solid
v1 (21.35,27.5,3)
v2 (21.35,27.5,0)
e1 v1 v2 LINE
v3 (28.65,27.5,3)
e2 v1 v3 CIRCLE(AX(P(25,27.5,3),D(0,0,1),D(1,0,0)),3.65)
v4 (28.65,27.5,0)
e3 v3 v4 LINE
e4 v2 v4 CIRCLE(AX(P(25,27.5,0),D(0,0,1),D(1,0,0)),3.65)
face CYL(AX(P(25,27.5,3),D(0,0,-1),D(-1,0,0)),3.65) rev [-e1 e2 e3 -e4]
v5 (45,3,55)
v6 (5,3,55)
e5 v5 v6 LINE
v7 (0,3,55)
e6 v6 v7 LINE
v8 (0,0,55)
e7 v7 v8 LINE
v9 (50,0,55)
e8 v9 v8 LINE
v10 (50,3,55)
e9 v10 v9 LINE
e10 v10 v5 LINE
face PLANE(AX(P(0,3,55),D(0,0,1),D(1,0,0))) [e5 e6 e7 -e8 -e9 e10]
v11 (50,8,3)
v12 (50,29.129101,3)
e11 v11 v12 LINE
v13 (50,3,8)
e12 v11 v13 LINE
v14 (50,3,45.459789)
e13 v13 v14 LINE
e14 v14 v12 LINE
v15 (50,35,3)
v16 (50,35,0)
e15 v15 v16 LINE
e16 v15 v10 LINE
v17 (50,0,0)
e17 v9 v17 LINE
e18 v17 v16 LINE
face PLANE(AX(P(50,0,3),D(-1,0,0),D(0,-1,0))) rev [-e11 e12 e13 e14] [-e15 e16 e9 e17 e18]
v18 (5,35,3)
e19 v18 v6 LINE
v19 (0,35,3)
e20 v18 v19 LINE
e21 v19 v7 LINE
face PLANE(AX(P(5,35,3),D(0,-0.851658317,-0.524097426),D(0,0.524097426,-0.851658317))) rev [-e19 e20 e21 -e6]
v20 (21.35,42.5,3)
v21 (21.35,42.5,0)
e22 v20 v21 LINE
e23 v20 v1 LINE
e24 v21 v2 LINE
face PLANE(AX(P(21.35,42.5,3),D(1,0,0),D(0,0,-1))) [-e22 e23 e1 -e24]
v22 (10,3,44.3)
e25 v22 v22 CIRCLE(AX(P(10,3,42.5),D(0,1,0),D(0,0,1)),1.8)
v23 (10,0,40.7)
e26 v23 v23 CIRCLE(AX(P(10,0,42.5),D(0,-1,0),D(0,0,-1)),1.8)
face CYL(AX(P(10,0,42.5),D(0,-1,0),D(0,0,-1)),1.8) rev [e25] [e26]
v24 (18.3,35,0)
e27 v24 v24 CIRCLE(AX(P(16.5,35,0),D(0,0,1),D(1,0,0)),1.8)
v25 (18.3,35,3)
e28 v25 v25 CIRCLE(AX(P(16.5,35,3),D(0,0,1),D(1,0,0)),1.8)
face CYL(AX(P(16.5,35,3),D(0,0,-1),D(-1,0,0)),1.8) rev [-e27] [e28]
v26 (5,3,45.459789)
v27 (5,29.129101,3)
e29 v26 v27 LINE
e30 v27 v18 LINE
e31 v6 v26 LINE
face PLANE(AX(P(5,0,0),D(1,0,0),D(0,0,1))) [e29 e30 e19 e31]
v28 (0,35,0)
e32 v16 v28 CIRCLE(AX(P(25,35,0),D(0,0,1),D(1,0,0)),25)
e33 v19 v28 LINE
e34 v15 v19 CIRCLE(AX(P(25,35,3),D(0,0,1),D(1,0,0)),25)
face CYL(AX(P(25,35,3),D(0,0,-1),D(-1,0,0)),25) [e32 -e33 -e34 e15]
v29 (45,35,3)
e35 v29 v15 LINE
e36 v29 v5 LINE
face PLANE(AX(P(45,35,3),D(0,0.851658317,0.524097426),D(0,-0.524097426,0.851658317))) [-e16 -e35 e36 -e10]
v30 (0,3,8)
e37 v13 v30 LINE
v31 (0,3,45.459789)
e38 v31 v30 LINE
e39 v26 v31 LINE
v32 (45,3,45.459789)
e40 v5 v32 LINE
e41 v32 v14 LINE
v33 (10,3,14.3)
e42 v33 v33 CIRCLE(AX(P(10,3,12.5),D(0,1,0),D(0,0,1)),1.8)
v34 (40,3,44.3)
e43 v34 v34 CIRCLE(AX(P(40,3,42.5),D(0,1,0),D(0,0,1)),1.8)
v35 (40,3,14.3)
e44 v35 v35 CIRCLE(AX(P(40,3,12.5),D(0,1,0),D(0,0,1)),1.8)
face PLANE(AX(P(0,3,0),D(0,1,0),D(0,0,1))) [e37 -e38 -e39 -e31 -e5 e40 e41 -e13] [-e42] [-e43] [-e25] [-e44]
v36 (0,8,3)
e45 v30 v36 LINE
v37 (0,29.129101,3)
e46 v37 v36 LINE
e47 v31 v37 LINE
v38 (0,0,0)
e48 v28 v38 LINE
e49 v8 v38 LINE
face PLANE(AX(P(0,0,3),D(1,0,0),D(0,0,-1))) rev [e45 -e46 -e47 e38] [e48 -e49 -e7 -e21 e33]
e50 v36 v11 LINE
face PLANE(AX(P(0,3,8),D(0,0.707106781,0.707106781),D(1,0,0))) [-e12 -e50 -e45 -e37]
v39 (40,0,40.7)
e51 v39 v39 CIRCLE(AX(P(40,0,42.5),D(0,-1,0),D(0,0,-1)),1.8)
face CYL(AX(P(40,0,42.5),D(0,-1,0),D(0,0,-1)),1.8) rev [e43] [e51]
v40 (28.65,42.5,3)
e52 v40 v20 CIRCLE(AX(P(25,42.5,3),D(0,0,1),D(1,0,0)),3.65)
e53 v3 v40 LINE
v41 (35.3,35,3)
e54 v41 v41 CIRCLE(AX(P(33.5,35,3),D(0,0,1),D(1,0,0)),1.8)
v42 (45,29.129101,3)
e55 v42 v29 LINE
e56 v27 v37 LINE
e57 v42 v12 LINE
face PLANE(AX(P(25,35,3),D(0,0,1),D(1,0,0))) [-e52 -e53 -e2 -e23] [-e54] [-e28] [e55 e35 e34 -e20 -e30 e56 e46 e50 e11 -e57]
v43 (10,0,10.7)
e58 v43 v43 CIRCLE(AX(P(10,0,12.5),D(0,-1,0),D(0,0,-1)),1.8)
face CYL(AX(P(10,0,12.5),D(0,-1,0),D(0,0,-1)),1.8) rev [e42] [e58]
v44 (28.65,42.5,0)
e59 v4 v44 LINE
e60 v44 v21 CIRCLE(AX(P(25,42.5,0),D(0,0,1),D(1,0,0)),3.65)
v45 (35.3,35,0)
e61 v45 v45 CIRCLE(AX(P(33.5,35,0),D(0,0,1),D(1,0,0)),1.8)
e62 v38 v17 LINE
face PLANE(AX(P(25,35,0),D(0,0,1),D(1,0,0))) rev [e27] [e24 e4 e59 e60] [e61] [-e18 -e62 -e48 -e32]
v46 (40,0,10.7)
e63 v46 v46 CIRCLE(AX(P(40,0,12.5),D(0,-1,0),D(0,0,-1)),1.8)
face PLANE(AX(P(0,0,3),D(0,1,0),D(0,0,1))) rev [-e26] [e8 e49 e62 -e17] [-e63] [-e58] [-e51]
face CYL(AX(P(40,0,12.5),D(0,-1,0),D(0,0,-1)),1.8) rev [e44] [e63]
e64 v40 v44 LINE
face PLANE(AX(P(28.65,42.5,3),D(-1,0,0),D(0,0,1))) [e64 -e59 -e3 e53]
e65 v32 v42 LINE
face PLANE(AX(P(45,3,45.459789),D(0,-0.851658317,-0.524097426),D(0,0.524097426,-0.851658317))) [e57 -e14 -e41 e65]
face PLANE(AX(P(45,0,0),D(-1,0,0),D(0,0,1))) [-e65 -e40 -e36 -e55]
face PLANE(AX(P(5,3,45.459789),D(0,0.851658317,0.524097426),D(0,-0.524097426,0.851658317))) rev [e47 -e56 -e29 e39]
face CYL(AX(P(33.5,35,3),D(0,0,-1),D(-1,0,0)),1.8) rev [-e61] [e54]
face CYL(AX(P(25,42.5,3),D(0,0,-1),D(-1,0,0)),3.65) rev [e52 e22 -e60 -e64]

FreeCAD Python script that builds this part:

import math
import FreeCAD as App
import Part
import Sketcher
Q = App.Units.Quantity


def edges_at(feature, points):
    """Names of the edges that pass closest to the given points."""
    edges = feature.Shape.Edges
    near = lambda p: min(range(len(edges)), key=lambda i: edges[i].distToShape(Part.Vertex(*p))[0])
    return sorted({f"Edge{near(p) + 1}" for p in points})


def add_polygon(sketch, points):
    """Adds a closed chain of lines whose ends are joined by coincident constraints."""
    first, n = sketch.GeometryCount, len(points)
    for a, b in zip(points, points[1:] + points[:1]):
        sketch.addGeometry(Part.LineSegment(App.Vector(*a, 0), App.Vector(*b, 0)), False)
    for i in range(n):
        sketch.addConstraint(Sketcher.Constraint("Coincident", first + i, 2, first + (i + 1) % n, 1))

doc = App.newDocument("Part")
body = doc.addObject("PartDesign::Body", "Body")

sketch1 = doc.addObject("Sketcher::SketchObject", "Sketch")
body.addObject(sketch1)
sketch1.AttachmentSupport = (doc.XY_Plane, [""])
sketch1.MapMode = "FlatFace"
sketch1.addGeometry([
    Part.LineSegment(App.Vector(0, 35, 0), App.Vector(0, 0, 0)),
    Part.LineSegment(App.Vector(0, 0, 0), App.Vector(50, 0, 0)),
    Part.LineSegment(App.Vector(50, 0, 0), App.Vector(50, 35, 0)),
    Part.ArcOfCircle(Part.Circle(App.Vector(25, 35, 0), App.Vector(0, 0, 1), 25), math.radians(0), math.radians(180)),
    Part.Circle(App.Vector(33.5, 35, 0), App.Vector(0, 0, 1), 1.8),
    Part.LineSegment(App.Vector(28.6, 42.5, 0), App.Vector(28.6, 27.5, 0)),
    Part.ArcOfCircle(Part.Circle(App.Vector(25, 27.5, 0), App.Vector(0, 0, 1), 3.6), math.radians(180), math.radians(360)),
    Part.LineSegment(App.Vector(21.4, 27.5, 0), App.Vector(21.4, 42.5, 0)),
    Part.ArcOfCircle(Part.Circle(App.Vector(25, 42.5, 0), App.Vector(0, 0, 1), 3.6), math.radians(0), math.radians(180)),
    Part.Circle(App.Vector(16.5, 35, 0), App.Vector(0, 0, 1), 1.8),
], False)
sketch1.addConstraint([
    Sketcher.Constraint("Coincident", 0, 2, 1, 1),
    Sketcher.Constraint("Coincident", 1, 2, 2, 1),
    Sketcher.Constraint("Tangent", 2, 2, 3, 1),
    Sketcher.Constraint("Tangent", 3, 2, 0, 1),
    Sketcher.Constraint("Tangent", 5, 2, 6, 2),
    Sketcher.Constraint("Tangent", 6, 1, 7, 1),
    Sketcher.Constraint("Tangent", 7, 2, 8, 2),
    Sketcher.Constraint("Tangent", 8, 1, 5, 1),
    Sketcher.Constraint("Vertical", 0),
    Sketcher.Constraint("Horizontal", 1),
    Sketcher.Constraint("Vertical", 2),
    Sketcher.Constraint("Vertical", 5),
    Sketcher.Constraint("Vertical", 7),
    Sketcher.Constraint("Coincident", 0, 2, -1, 1),
    Sketcher.Constraint("Equal", 4, 9),
    Sketcher.Constraint("Horizontal", 3, 3, 4, 3),
    Sketcher.Constraint("Horizontal", 4, 3, 9, 3),
    Sketcher.Constraint("Vertical", 3, 3, 6, 3),
    Sketcher.Constraint("Radius", 3, Q("25 mm")),
    Sketcher.Constraint("Diameter", 4, Q("3.6 mm")),
    Sketcher.Constraint("DistanceY", 0, 2, 0, 1, Q("35 mm")),
    Sketcher.Constraint("DistanceY", 5, 2, 5, 1, Q("15 mm")),
    Sketcher.Constraint("Radius", 6, Q("3.65 mm")),
    Sketcher.Constraint("DistanceX", 9, 3, 4, 3, Q("17 mm")),
    Sketcher.Constraint("DistanceX", -1, 1, 4, 3, Q("33.5 mm")),
    Sketcher.Constraint("DistanceY", -1, 1, 6, 3, Q("27.5 mm")),
])
pad1 = doc.addObject("PartDesign::Pad", "Pad")
body.addObject(pad1)
pad1.Profile = sketch1
pad1.Length = 3

sketch2 = doc.addObject("Sketcher::SketchObject", "Sketch001")
body.addObject(sketch2)
sketch2.AttachmentSupport = (doc.XZ_Plane, [""])
sketch2.MapMode = "FlatFace"
add_polygon(sketch2, [(0, 55), (0, 0), (50, 0), (50, 55)])
sketch2.addConstraint([
    Sketcher.Constraint("Vertical", 0),
    Sketcher.Constraint("Horizontal", 1),
    Sketcher.Constraint("Vertical", 2),
    Sketcher.Constraint("Horizontal", 3),
    Sketcher.Constraint("Coincident", 0, 2, -1, 1),
    Sketcher.Constraint("DistanceX", 1, 1, 1, 2, Q("50 mm")),
    Sketcher.Constraint("DistanceY", 0, 2, 0, 1, Q("55 mm")),
])
pad2 = doc.addObject("PartDesign::Pad", "Pad001")
body.addObject(pad2)
pad2.Profile = sketch2
pad2.Length = 3
pad2.Reversed = True

sketch3 = doc.addObject("Sketcher::SketchObject", "Sketch002")
body.addObject(sketch3)
sketch3.AttachmentSupport = (doc.XZ_Plane, [""])
sketch3.MapMode = "FlatFace"
sketch3.addGeometry(Part.Circle(App.Vector(10, 42.5, 0), App.Vector(0, 0, 1), 1.8), False)
sketch3.addConstraint([
    Sketcher.Constraint("Diameter", 0, Q("3.6 mm")),
    Sketcher.Constraint("DistanceX", -1, 1, 0, 3, Q("10 mm")),
    Sketcher.Constraint("DistanceY", -1, 1, 0, 3, Q("42.5 mm")),
])
doc.recompute()
hole = doc.addObject("PartDesign::Hole", "Hole")
body.addObject(hole)
hole.Profile = sketch3
hole.ThreadType = "None"
hole.Diameter = 3.6
hole.DepthType = "ThroughAll"
doc.recompute()

datumplane = doc.addObject("PartDesign::Plane", "DatumPlane")
body.addObject(datumplane)
datumplane.AttachmentSupport = (doc.YZ_Plane, [""])
datumplane.MapMode = "FlatFace"
datumplane.AttachmentOffset = App.Placement(App.Vector(0, 0, 25), App.Rotation())
mirrored = doc.addObject("PartDesign::Mirrored", "Mirrored")
body.addObject(mirrored)
mirrored.Originals = [hole]
mirrored.MirrorPlane = (datumplane, [""])
body.Tip = mirrored
doc.recompute()

datumplane2 = doc.addObject("PartDesign::Plane", "DatumPlane001")
body.addObject(datumplane2)
datumplane2.AttachmentSupport = (doc.XY_Plane, [""])
datumplane2.MapMode = "FlatFace"
datumplane2.AttachmentOffset = App.Placement(App.Vector(0, 0, 27.5), App.Rotation())
mirrored2 = doc.addObject("PartDesign::Mirrored", "Mirrored001")
body.addObject(mirrored2)
mirrored2.Originals = [hole]
mirrored2.MirrorPlane = (datumplane2, [""])
body.Tip = mirrored2

sketch4 = doc.addObject("Sketcher::SketchObject", "Sketch003")
body.addObject(sketch4)
sketch4.AttachmentSupport = (doc.XZ_Plane, [""])
sketch4.MapMode = "FlatFace"
sketch4.addGeometry(Part.Circle(App.Vector(40, 12.5, 0), App.Vector(0, 0, 1), 1.8), False)
sketch4.addConstraint([
    Sketcher.Constraint("Diameter", 0, Q("3.6 mm")),
    Sketcher.Constraint("DistanceX", -1, 1, 0, 3, Q("40 mm")),
    Sketcher.Constraint("DistanceY", -1, 1, 0, 3, Q("12.5 mm")),
])
doc.recompute()
hole2 = doc.addObject("PartDesign::Hole", "Hole001")
body.addObject(hole2)
hole2.Profile = sketch4
hole2.ThreadType = "None"
hole2.Diameter = 3.6
hole2.DepthType = "ThroughAll"

sketch5 = doc.addObject("Sketcher::SketchObject", "Sketch004")
body.addObject(sketch5)
sketch5.AttachmentSupport = (doc.YZ_Plane, [""])
sketch5.MapMode = "FlatFace"
sketch5.AttachmentOffset = App.Placement(App.Vector(0, 0, 50), App.Rotation())
add_polygon(sketch5, [(35, 3), (3, 55), (3, 45), (29, 3)])
sketch5.addConstraint([
    Sketcher.Constraint("Vertical", 1),
    Sketcher.Constraint("Horizontal", 3),
    Sketcher.Constraint("Parallel", 0, 2),
    Sketcher.Constraint("DistanceX", -1, 1, 0, 2, Q("3 mm")),
    Sketcher.Constraint("DistanceY", -1, 1, 0, 2, Q("55 mm")),
    Sketcher.Constraint("DistanceY", -1, 1, 2, 2, Q("3 mm")),
    Sketcher.Constraint("DistanceX", -1, 1, 3, 2, Q("35 mm")),
    Sketcher.Constraint("DistanceX", 3, 1, 3, 2, Q("5.870899 mm")),
])
pad3 = doc.addObject("PartDesign::Pad", "Pad002")
body.addObject(pad3)
pad3.Profile = sketch5
pad3.Length = 5
pad3.Reversed = True
doc.recompute()

datumplane3 = doc.addObject("PartDesign::Plane", "DatumPlane002")
body.addObject(datumplane3)
datumplane3.AttachmentSupport = (doc.YZ_Plane, [""])
datumplane3.MapMode = "FlatFace"
datumplane3.AttachmentOffset = App.Placement(App.Vector(0, 0, 25), App.Rotation())
mirrored3 = doc.addObject("PartDesign::Mirrored", "Mirrored002")
body.addObject(mirrored3)
mirrored3.Originals = [pad3]
mirrored3.MirrorPlane = (datumplane3, [""])
body.Tip = mirrored3
doc.recompute()

chamfer = doc.addObject("PartDesign::Chamfer", "Chamfer")
body.addObject(chamfer)
chamfer.Base = (mirrored3, edges_at(mirrored3, [(25, 3, 3)]))
chamfer.Size = 5

doc.recompute()
